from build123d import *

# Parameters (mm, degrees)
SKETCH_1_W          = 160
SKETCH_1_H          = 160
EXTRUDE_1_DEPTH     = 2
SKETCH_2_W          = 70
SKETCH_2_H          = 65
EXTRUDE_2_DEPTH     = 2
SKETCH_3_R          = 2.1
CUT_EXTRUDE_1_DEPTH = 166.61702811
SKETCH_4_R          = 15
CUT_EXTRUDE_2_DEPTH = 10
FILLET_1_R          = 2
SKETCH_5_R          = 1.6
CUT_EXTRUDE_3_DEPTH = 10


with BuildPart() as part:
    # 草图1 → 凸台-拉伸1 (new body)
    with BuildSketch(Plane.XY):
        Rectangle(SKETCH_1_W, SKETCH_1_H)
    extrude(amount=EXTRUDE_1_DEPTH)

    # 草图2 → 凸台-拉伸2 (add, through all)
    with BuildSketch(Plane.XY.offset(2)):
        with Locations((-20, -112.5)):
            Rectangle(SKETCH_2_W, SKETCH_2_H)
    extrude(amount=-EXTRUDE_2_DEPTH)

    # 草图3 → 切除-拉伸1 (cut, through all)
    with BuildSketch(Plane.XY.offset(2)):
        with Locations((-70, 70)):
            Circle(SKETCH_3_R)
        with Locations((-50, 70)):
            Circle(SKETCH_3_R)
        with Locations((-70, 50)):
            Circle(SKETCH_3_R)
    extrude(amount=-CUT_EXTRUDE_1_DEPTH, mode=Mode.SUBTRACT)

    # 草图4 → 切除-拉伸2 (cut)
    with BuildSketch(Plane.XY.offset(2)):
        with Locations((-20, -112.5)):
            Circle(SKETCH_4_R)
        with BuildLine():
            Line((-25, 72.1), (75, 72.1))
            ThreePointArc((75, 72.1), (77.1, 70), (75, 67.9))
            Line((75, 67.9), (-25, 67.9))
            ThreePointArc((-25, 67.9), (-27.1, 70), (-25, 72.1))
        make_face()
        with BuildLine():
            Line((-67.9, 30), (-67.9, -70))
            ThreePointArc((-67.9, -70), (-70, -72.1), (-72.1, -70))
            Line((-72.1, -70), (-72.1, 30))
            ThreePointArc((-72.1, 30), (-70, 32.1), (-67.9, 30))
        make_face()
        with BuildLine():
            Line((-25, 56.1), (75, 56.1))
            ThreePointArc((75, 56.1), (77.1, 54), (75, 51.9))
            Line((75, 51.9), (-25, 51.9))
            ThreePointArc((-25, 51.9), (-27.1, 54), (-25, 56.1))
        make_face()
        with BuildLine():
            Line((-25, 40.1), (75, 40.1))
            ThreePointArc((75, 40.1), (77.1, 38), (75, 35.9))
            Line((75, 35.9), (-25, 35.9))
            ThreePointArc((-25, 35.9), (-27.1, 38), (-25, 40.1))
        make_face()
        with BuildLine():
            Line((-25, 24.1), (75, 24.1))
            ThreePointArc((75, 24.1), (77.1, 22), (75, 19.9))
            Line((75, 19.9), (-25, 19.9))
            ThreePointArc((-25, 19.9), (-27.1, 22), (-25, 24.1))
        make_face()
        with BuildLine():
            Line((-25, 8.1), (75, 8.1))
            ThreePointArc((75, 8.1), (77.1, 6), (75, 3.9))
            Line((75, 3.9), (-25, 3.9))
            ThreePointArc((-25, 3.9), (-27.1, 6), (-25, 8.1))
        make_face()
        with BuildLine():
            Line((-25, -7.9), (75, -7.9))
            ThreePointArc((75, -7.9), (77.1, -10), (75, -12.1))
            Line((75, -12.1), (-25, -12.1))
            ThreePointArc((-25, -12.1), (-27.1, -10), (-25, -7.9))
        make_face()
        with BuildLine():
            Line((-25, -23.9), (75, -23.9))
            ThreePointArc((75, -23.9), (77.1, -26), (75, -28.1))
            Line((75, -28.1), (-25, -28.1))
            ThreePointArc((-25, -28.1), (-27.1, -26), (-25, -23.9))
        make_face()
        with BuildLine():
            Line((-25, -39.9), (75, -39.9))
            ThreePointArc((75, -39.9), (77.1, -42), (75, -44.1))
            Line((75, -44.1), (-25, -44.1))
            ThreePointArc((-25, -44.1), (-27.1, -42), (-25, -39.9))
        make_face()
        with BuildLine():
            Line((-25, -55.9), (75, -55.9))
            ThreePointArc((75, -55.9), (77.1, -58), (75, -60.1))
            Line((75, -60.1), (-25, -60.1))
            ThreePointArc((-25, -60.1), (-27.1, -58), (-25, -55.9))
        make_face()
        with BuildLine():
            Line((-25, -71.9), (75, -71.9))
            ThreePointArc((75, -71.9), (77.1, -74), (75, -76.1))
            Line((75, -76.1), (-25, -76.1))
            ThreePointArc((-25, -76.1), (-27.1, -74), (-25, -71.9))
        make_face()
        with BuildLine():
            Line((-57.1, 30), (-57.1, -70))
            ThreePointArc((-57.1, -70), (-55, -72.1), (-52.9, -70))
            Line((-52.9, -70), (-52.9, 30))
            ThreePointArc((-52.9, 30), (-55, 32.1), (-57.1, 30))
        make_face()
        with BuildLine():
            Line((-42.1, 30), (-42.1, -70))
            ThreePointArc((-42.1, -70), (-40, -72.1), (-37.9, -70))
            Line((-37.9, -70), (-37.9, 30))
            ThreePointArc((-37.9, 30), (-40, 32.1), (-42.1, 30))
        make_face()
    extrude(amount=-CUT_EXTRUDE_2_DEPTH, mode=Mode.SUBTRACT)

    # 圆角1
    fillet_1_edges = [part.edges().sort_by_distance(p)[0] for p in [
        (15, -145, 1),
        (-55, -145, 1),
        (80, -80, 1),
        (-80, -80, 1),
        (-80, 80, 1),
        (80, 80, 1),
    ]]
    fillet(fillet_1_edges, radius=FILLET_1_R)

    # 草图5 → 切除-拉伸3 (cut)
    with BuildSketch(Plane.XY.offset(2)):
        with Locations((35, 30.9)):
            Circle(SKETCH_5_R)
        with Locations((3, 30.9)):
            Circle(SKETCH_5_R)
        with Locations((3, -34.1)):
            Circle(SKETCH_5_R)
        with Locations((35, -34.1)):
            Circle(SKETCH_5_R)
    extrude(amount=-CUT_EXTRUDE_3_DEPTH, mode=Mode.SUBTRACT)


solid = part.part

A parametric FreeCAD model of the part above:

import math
import FreeCAD as App
import Part
import Sketcher
from FreeCAD import Vector


def edges_at(feature, points):
    """Names of the edges that pass closest to the given points."""
    edges = feature.Shape.Edges
    near = lambda p: min(range(len(edges)), key=lambda i: edges[i].distToShape(Part.Vertex(*p))[0])
    return sorted({f"Edge{near(p) + 1}" for p in points})

doc = App.newDocument("Part")
params = doc.addObject("Spreadsheet::Sheet", "Params")
for row, (alias, value) in enumerate([
    ("sketch1_width", "160 mm"),
    ("pad1_length", "2 mm"),
    ("sketch2_width", "70 mm"),
    ("sketch2_height", "65 mm"),
    ("pad2_length", "2 mm"),
    ("sketch3_diameter", "4.2 mm"),
    ("sketch4_diameter", "30 mm"),
    ("sketch4_radius", "2.1 mm"),
    ("sketch4_width", "100 mm"),
    ("pocket2_length", "10 mm"),
    ("fillet_radius", "2 mm"),
    ("sketch5_diameter", "3.2 mm"),
    ("pocket3_length", "10 mm"),
], start=1):
    params.set(f"A{row}", alias)
    params.set(f"B{row}", "=" + value)
    params.setAlias(f"B{row}", alias)

body = doc.addObject("PartDesign::Body", "Body")

# Sketch on XY plane
sketch1 = body.newObject("Sketcher::SketchObject", "Sketch")
sketch1.AttachmentSupport = (doc.getObject("XY_Plane"), [""])
sketch1.MapMode = "FlatFace"
sketch1.addGeometry([
    Part.LineSegment(Vector(-80, 80, 0), Vector(-80, -80, 0)),
    Part.LineSegment(Vector(-80, -80, 0), Vector(80, -80, 0)),
    Part.LineSegment(Vector(80, -80, 0), Vector(80, 80, 0)),
    Part.LineSegment(Vector(80, 80, 0), Vector(-80, 80, 0)),
], False)
sketch1.addConstraint([
    Sketcher.Constraint("Coincident", 0, 2, 1, 1),
    Sketcher.Constraint("Coincident", 1, 2, 2, 1),
    Sketcher.Constraint("Coincident", 2, 2, 3, 1),
    Sketcher.Constraint("Coincident", 3, 2, 0, 1),
    Sketcher.Constraint("Vertical", 0),
    Sketcher.Constraint("Horizontal", 1),
    Sketcher.Constraint("Vertical", 2),
    Sketcher.Constraint("Horizontal", 3),
    Sketcher.Constraint("Symmetric", 0, 2, 2, 2, -1, 1),
    Sketcher.Constraint("Equal", 3, 0),
    Sketcher.Constraint("DistanceX", 1, 1, 1, 2, 160.0),
])
sketch1.setExpression("Constraints[10]", "Params.sketch1_width")
pad1 = body.newObject("PartDesign::Pad", "Pad")
pad1.Profile = sketch1
pad1.setExpression("Length", "Params.pad1_length")

# Sketch on XY plane
sketch2 = body.newObject("Sketcher::SketchObject", "Sketch001")
sketch2.AttachmentSupport = (doc.getObject("XY_Plane"), [""])
sketch2.MapMode = "FlatFace"
sketch2.AttachmentOffset = App.Placement(Vector(0, 0, 2), App.Rotation())
sketch2.addGeometry([
    Part.LineSegment(Vector(-55, -80, 0), Vector(-55, -145, 0)),
    Part.LineSegment(Vector(-55, -145, 0), Vector(15, -145, 0)),
    Part.LineSegment(Vector(15, -145, 0), Vector(15, -80, 0)),
    Part.LineSegment(Vector(15, -80, 0), Vector(-55, -80, 0)),
], False)
sketch2.addConstraint([
    Sketcher.Constraint("Coincident", 0, 2, 1, 1),
    Sketcher.Constraint("Coincident", 1, 2, 2, 1),
    Sketcher.Constraint("Coincident", 2, 2, 3, 1),
    Sketcher.Constraint("Coincident", 3, 2, 0, 1),
    Sketcher.Constraint("Vertical", 0),
    Sketcher.Constraint("Horizontal", 1),
    Sketcher.Constraint("Vertical", 2),
    Sketcher.Constraint("Horizontal", 3),
    Sketcher.Constraint("DistanceX", 1, 1, 1, 2, 70.0),
    Sketcher.Constraint("DistanceY", 0, 2, 0, 1, 65.0),
    Sketcher.Constraint("DistanceX", 0, 2, -1, 1, 55.0),
    Sketcher.Constraint("DistanceY", 0, 2, -1, 1, 145.0),
])
sketch2.setExpression("Constraints[8]", "Params.sketch2_width")
sketch2.setExpression("Constraints[9]", "Params.sketch2_height")
pad2 = body.newObject("PartDesign::Pad", "Pad001")
pad2.Profile = sketch2
pad2.setExpression("Length", "Params.pad2_length")
pad2.Reversed = True

# Sketch on XY plane
sketch3 = body.newObject("Sketcher::SketchObject", "Sketch002")
sketch3.AttachmentSupport = (doc.getObject("XY_Plane"), [""])
sketch3.MapMode = "FlatFace"
sketch3.AttachmentOffset = App.Placement(Vector(0, 0, 2), App.Rotation())
sketch3.addGeometry([
    Part.Circle(Vector(-70, 70, 0), Vector(0, 0, 1), 2.1),
    Part.Circle(Vector(-50, 70, 0), Vector(0, 0, 1), 2.1),
    Part.Circle(Vector(-70, 50, 0), Vector(0, 0, 1), 2.1),
], False)
sketch3.addConstraint([
    Sketcher.Constraint("Equal", 0, 1),
    Sketcher.Constraint("Equal", 1, 2),
    Sketcher.Constraint("Horizontal", 0, 3, 1, 3),
    Sketcher.Constraint("Vertical", 0, 3, 2, 3),
    Sketcher.Constraint("Diameter", 0, 4.2),
    Sketcher.Constraint("DistanceX", 0, 3, -1, 1, 70.0),
    Sketcher.Constraint("DistanceY", -1, 1, 0, 3, 70.0),
    Sketcher.Constraint("DistanceX", 1, 3, -1, 1, 50.0),
    Sketcher.Constraint("DistanceY", -1, 1, 2, 3, 50.0),
])
sketch3.setExpression("Constraints[4]", "Params.sketch3_diameter")
pocket1 = body.newObject("PartDesign::Pocket", "Pocket")
pocket1.Profile = sketch3
pocket1.Type = "ThroughAll"

# Sketch on XY plane
sketch4 = body.newObject("Sketcher::SketchObject", "Sketch003")
sketch4.AttachmentSupport = (doc.getObject("XY_Plane"), [""])
sketch4.MapMode = "FlatFace"
sketch4.AttachmentOffset = App.Placement(Vector(0, 0, 2), App.Rotation())
sketch4.addGeometry([
    Part.Circle(Vector(-20, -112.5, 0), Vector(0, 0, 1), 15),  # 0
    Part.LineSegment(Vector(75, 72.1, 0), Vector(-25, 72.1, 0)),  # 1
    Part.ArcOfCircle(Part.Circle(Vector(-25, 70, 0), Vector(0, 0, 1), 2.1), math.radians(90), math.radians(270)),  # 2
    Part.LineSegment(Vector(-25, 67.9, 0), Vector(75, 67.9, 0)),  # 3
    Part.ArcOfCircle(Part.Circle(Vector(75, 70, 0), Vector(0, 0, 1), 2.1), math.radians(-90), math.radians(90)),  # 4
    Part.LineSegment(Vector(-67.9, -70, 0), Vector(-67.9, 30, 0)),  # 5
    Part.ArcOfCircle(Part.Circle(Vector(-70, 30, 0), Vector(0, 0, 1), 2.1), math.radians(0), math.radians(180)),  # 6
    Part.LineSegment(Vector(-72.1, 30, 0), Vector(-72.1, -70, 0)),  # 7
    Part.ArcOfCircle(Part.Circle(Vector(-70, -70, 0), Vector(0, 0, 1), 2.1), math.radians(180), math.radians(360)),  # 8
    Part.LineSegment(Vector(75, 56.1, 0), Vector(-25, 56.1, 0)),  # 9
    Part.ArcOfCircle(Part.Circle(Vector(-25, 54, 0), Vector(0, 0, 1), 2.1), math.radians(90), math.radians(270)),  # 10
    Part.LineSegment(Vector(-25, 51.9, 0), Vector(75, 51.9, 0)),  # 11
    Part.ArcOfCircle(Part.Circle(Vector(75, 54, 0), Vector(0, 0, 1), 2.1), math.radians(-90), math.radians(90)),  # 12
    Part.LineSegment(Vector(75, 40.1, 0), Vector(-25, 40.1, 0)),  # 13
    Part.ArcOfCircle(Part.Circle(Vector(-25, 38, 0), Vector(0, 0, 1), 2.1), math.radians(90), math.radians(270)),  # 14
    Part.LineSegment(Vector(-25, 35.9, 0), Vector(75, 35.9, 0)),  # 15
    Part.ArcOfCircle(Part.Circle(Vector(75, 38, 0), Vector(0, 0, 1), 2.1), math.radians(-90), math.radians(90)),  # 16
    Part.LineSegment(Vector(75, 24.1, 0), Vector(-25, 24.1, 0)),  # 17
    Part.ArcOfCircle(Part.Circle(Vector(-25, 22, 0), Vector(0, 0, 1), 2.1), math.radians(90), math.radians(270)),  # 18
    Part.LineSegment(Vector(-25, 19.9, 0), Vector(75, 19.9, 0)),  # 19
    Part.ArcOfCircle(Part.Circle(Vector(75, 22, 0), Vector(0, 0, 1), 2.1), math.radians(-90), math.radians(90)),  # 20
    Part.LineSegment(Vector(75, 8.1, 0), Vector(-25, 8.1, 0)),  # 21
    Part.ArcOfCircle(Part.Circle(Vector(-25, 6, 0), Vector(0, 0, 1), 2.1), math.radians(90), math.radians(270)),  # 22
    Part.LineSegment(Vector(-25, 3.9, 0), Vector(75, 3.9, 0)),  # 23
    Part.ArcOfCircle(Part.Circle(Vector(75, 6, 0), Vector(0, 0, 1), 2.1), math.radians(-90), math.radians(90)),  # 24
    Part.LineSegment(Vector(75, -7.9, 0), Vector(-25, -7.9, 0)),  # 25
    Part.ArcOfCircle(Part.Circle(Vector(-25, -10, 0), Vector(0, 0, 1), 2.1), math.radians(90), math.radians(270)),  # 26
    Part.LineSegment(Vector(-25, -12.1, 0), Vector(75, -12.1, 0)),  # 27
    Part.ArcOfCircle(Part.Circle(Vector(75, -10, 0), Vector(0, 0, 1), 2.1), math.radians(-90), math.radians(90)),  # 28
    Part.LineSegment(Vector(75, -23.9, 0), Vector(-25, -23.9, 0)),  # 29
    Part.ArcOfCircle(Part.Circle(Vector(-25, -26, 0), Vector(0, 0, 1), 2.1), math.radians(90), math.radians(270)),  # 30
    Part.LineSegment(Vector(-25, -28.1, 0), Vector(75, -28.1, 0)),  # 31
    Part.ArcOfCircle(Part.Circle(Vector(75, -26, 0), Vector(0, 0, 1), 2.1), math.radians(-90), math.radians(90)),  # 32
    Part.LineSegment(Vector(75, -39.9, 0), Vector(-25, -39.9, 0)),  # 33
    Part.ArcOfCircle(Part.Circle(Vector(-25, -42, 0), Vector(0, 0, 1), 2.1), math.radians(90), math.radians(270)),  # 34
    Part.LineSegment(Vector(-25, -44.1, 0), Vector(75, -44.1, 0)),  # 35
    Part.ArcOfCircle(Part.Circle(Vector(75, -42, 0), Vector(0, 0, 1), 2.1), math.radians(-90), math.radians(90)),  # 36
    Part.LineSegment(Vector(75, -55.9, 0), Vector(-25, -55.9, 0)),  # 37
    Part.ArcOfCircle(Part.Circle(Vector(-25, -58, 0), Vector(0, 0, 1), 2.1), math.radians(90), math.radians(270)),  # 38
    Part.LineSegment(Vector(-25, -60.1, 0), Vector(75, -60.1, 0)),  # 39
    Part.ArcOfCircle(Part.Circle(Vector(75, -58, 0), Vector(0, 0, 1), 2.1), math.radians(-90), math.radians(90)),  # 40
    Part.LineSegment(Vector(75, -71.9, 0), Vector(-25, -71.9, 0)),  # 41
    Part.ArcOfCircle(Part.Circle(Vector(-25, -74, 0), Vector(0, 0, 1), 2.1), math.radians(90), math.radians(270)),  # 42
    Part.LineSegment(Vector(-25, -76.1, 0), Vector(75, -76.1, 0)),  # 43
    Part.ArcOfCircle(Part.Circle(Vector(75, -74, 0), Vector(0, 0, 1), 2.1), math.radians(-90), math.radians(90)),  # 44
    Part.LineSegment(Vector(-57.1, 30, 0), Vector(-57.1, -70, 0)),  # 45
    Part.ArcOfCircle(Part.Circle(Vector(-55, -70, 0), Vector(0, 0, 1), 2.1), math.radians(180), math.radians(360)),  # 46
    Part.LineSegment(Vector(-52.9, -70, 0), Vector(-52.9, 30, 0)),  # 47
    Part.ArcOfCircle(Part.Circle(Vector(-55, 30, 0), Vector(0, 0, 1), 2.1), math.radians(0), math.radians(180)),  # 48
    Part.LineSegment(Vector(-42.1, 30, 0), Vector(-42.1, -70, 0)),  # 49
    Part.ArcOfCircle(Part.Circle(Vector(-40, -70, 0), Vector(0, 0, 1), 2.1), math.radians(180), math.radians(360)),  # 50
    Part.LineSegment(Vector(-37.9, -70, 0), Vector(-37.9, 30, 0)),  # 51
    Part.ArcOfCircle(Part.Circle(Vector(-40, 30, 0), Vector(0, 0, 1), 2.1), math.radians(0), math.radians(180)),  # 52
], False)
sketch4.addConstraint([
    Sketcher.Constraint("Tangent", 1, 2, 2, 1),
    Sketcher.Constraint("Tangent", 2, 2, 3, 1),
    Sketcher.Constraint("Tangent", 3, 2, 4, 1),
    Sketcher.Constraint("Tangent", 4, 2, 1, 1),
    Sketcher.Constraint("Tangent", 5, 2, 6, 1),
    Sketcher.Constraint("Tangent", 6, 2, 7, 1),
    Sketcher.Constraint("Tangent", 7, 2, 8, 1),
    Sketcher.Constraint("Tangent", 8, 2, 5, 1),
    Sketcher.Constraint("Tangent", 9, 2, 10, 1),
    Sketcher.Constraint("Tangent", 10, 2, 11, 1),
    Sketcher.Constraint("Tangent", 11, 2, 12, 1),
    Sketcher.Constraint("Tangent", 12, 2, 9, 1),
    Sketcher.Constraint("Tangent", 13, 2, 14, 1),
    Sketcher.Constraint("Tangent", 14, 2, 15, 1),
    Sketcher.Constraint("Tangent", 15, 2, 16, 1),
    Sketcher.Constraint("Tangent", 16, 2, 13, 1),
    Sketcher.Constraint("Tangent", 17, 2, 18, 1),
    Sketcher.Constraint("Tangent", 18, 2, 19, 1),
    Sketcher.Constraint("Tangent", 19, 2, 20, 1),
    Sketcher.Constraint("Tangent", 20, 2, 17, 1),
    Sketcher.Constraint("Tangent", 21, 2, 22, 1),
    Sketcher.Constraint("Tangent", 22, 2, 23, 1),
    Sketcher.Constraint("Tangent", 23, 2, 24, 1),
    Sketcher.Constraint("Tangent", 24, 2, 21, 1),
    Sketcher.Constraint("Tangent", 25, 2, 26, 1),
    Sketcher.Constraint("Tangent", 26, 2, 27, 1),
    Sketcher.Constraint("Tangent", 27, 2, 28, 1),
    Sketcher.Constraint("Tangent", 28, 2, 25, 1),
    Sketcher.Constraint("Tangent", 29, 2, 30, 1),
    Sketcher.Constraint("Tangent", 30, 2, 31, 1),
    Sketcher.Constraint("Tangent", 31, 2, 32, 1),
    Sketcher.Constraint("Tangent", 32, 2, 29, 1),
    Sketcher.Constraint("Tangent", 33, 2, 34, 1),
    Sketcher.Constraint("Tangent", 34, 2, 35, 1),
    Sketcher.Constraint("Tangent", 35, 2, 36, 1),
    Sketcher.Constraint("Tangent", 36, 2, 33, 1),
    Sketcher.Constraint("Tangent", 37, 2, 38, 1),
    Sketcher.Constraint("Tangent", 38, 2, 39, 1),
    Sketcher.Constraint("Tangent", 39, 2, 40, 1),
    Sketcher.Constraint("Tangent", 40, 2, 37, 1),
    Sketcher.Constraint("Tangent", 41, 2, 42, 1),
    Sketcher.Constraint("Tangent", 42, 2, 43, 1),
    Sketcher.Constraint("Tangent", 43, 2, 44, 1),
    Sketcher.Constraint("Tangent", 44, 2, 41, 1),
    Sketcher.Constraint("Tangent", 45, 2, 46, 1),
    Sketcher.Constraint("Tangent", 46, 2, 47, 1),
    Sketcher.Constraint("Tangent", 47, 2, 48, 1),
    Sketcher.Constraint("Tangent", 48, 2, 45, 1),
    Sketcher.Constraint("Tangent", 49, 2, 50, 1),
    Sketcher.Constraint("Tangent", 50, 2, 51, 1),
    Sketcher.Constraint("Tangent", 51, 2, 52, 1),
    Sketcher.Constraint("Tangent", 52, 2, 49, 1),
    Sketcher.Constraint("Horizontal", 1),
    Sketcher.Constraint("Horizontal", 3),
    Sketcher.Constraint("Vertical", 5),
    Sketcher.Constraint("Vertical", 7),
    Sketcher.Constraint("Horizontal", 9),
    Sketcher.Constraint("Horizontal", 11),
    Sketcher.Constraint("Horizontal", 13),
    Sketcher.Constraint("Horizontal", 15),
    Sketcher.Constraint("Horizontal", 17),
    Sketcher.Constraint("Horizontal", 19),
    Sketcher.Constraint("Horizontal", 21),
    Sketcher.Constraint("Horizontal", 23),
    Sketcher.Constraint("Horizontal", 25),
    Sketcher.Constraint("Horizontal", 27),
    Sketcher.Constraint("Horizontal", 29),
    Sketcher.Constraint("Horizontal", 31),
    Sketcher.Constraint("Horizontal", 33),
    Sketcher.Constraint("Horizontal", 35),
    Sketcher.Constraint("Horizontal", 37),
    Sketcher.Constraint("Horizontal", 39),
    Sketcher.Constraint("Horizontal", 41),
    Sketcher.Constraint("Horizontal", 43),
    Sketcher.Constraint("Vertical", 45),
    Sketcher.Constraint("Vertical", 47),
    Sketcher.Constraint("Vertical", 49),
    Sketcher.Constraint("Vertical", 51),
    Sketcher.Constraint("Equal", 4, 6),
    Sketcher.Constraint("Equal", 8, 10),
    Sketcher.Constraint("Equal", 12, 14),
    Sketcher.Constraint("Equal", 16, 18),
    Sketcher.Constraint("Equal", 20, 22),
    Sketcher.Constraint("Equal", 24, 26),
    Sketcher.Constraint("Equal", 28, 30),
    Sketcher.Constraint("Equal", 32, 34),
    Sketcher.Constraint("Equal", 36, 38),
    Sketcher.Constraint("Equal", 40, 42),
    Sketcher.Constraint("Equal", 44, 46),
    Sketcher.Constraint("Equal", 48, 50),
    Sketcher.Constraint("Horizontal", 8, 3, 46, 3),
    Sketcher.Constraint("Horizontal", 6, 3, 48, 3),
    Sketcher.Constraint("Horizontal", 46, 3, 50, 3),
    Sketcher.Constraint("Horizontal", 48, 3, 52, 3),
    Sketcher.Constraint("Vertical", 2, 3, 10, 3),
    Sketcher.Constraint("Vertical", 4, 3, 12, 3),
    Sketcher.Constraint("Vertical", 10, 3, 14, 3),
    Sketcher.Constraint("Vertical", 12, 3, 16, 3),
    Sketcher.Constraint("Vertical", 14, 3, 18, 3),
    Sketcher.Constraint("Vertical", 16, 3, 20, 3),
    Sketcher.Constraint("Vertical", 18, 3, 22, 3),
    Sketcher.Constraint("Vertical", 20, 3, 24, 3),
    Sketcher.Constraint("Vertical", 22, 3, 26, 3),
    Sketcher.Constraint("Vertical", 24, 3, 28, 3),
    Sketcher.Constraint("Vertical", 26, 3, 30, 3),
    Sketcher.Constraint("Vertical", 28, 3, 32, 3),
    Sketcher.Constraint("Vertical", 30, 3, 34, 3),
    Sketcher.Constraint("Vertical", 32, 3, 36, 3),
    Sketcher.Constraint("Vertical", 34, 3, 38, 3),
    Sketcher.Constraint("Vertical", 36, 3, 40, 3),
    Sketcher.Constraint("Vertical", 38, 3, 42, 3),
    Sketcher.Constraint("Vertical", 40, 3, 44, 3),
    Sketcher.Constraint("Equal", 43, 5),
    Sketcher.Constraint("Diameter", 0, 30.0),
    Sketcher.Constraint("Radius", 2, 2.1),
    Sketcher.Constraint("DistanceX", 1, 2, 1, 1, 100.0),
    Sketcher.Constraint("DistanceX", 0, 3, -1, 1, 20.0),
    Sketcher.Constraint("DistanceX", 2, 3, -1, 1, 25.0),
    Sketcher.Constraint("DistanceY", -1, 1, 2, 3, 70.0),
    Sketcher.Constraint("DistanceX", 6, 3, -1, 1, 70.0),
    Sketcher.Constraint("DistanceY", -1, 1, 6, 3, 30.0),
    Sketcher.Constraint("DistanceY", -1, 1, 10, 3, 54.0),
    Sketcher.Constraint("DistanceY", -1, 1, 14, 3, 38.0),
    Sketcher.Constraint("DistanceY", -1, 1, 18, 3, 22.0),
    Sketcher.Constraint("DistanceY", -1, 1, 22, 3, 6.0),
    Sketcher.Constraint("DistanceY", 26, 3, -1, 1, 10.0),
    Sketcher.Constraint("DistanceY", 30, 3, -1, 1, 26.0),
    Sketcher.Constraint("DistanceY", 34, 3, -1, 1, 42.0),
    Sketcher.Constraint("DistanceY", 38, 3, -1, 1, 58.0),
    Sketcher.Constraint("DistanceY", 42, 3, -1, 1, 74.0),
    Sketcher.Constraint("DistanceX", 46, 3, -1, 1, 55.0),
    Sketcher.Constraint("DistanceX", 50, 3, -1, 1, 40.0),
    Sketcher.Constraint("DistanceY", 0, 3, -1, 1, 112.5),
])
sketch4.setExpression("Constraints[113]", "Params.sketch4_diameter")
sketch4.setExpression("Constraints[114]", "Params.sketch4_radius")
sketch4.setExpression("Constraints[115]", "Params.sketch4_width")
pocket2 = body.newObject("PartDesign::Pocket", "Pocket001")
pocket2.Profile = sketch4
pocket2.setExpression("Length", "Params.pocket2_length")
doc.recompute()

fillet = body.newObject("PartDesign::Fillet", "Fillet")
fillet.Base = (pocket2, edges_at(pocket2, [
    (15, -145, 1),
    (-55, -145, 1),
    (80, -80, 1),
    (-80, -80, 1),
    (-80, 80, 1),
    (80, 80, 1),
]))
fillet.setExpression("Radius", "Params.fillet_radius")

# Sketch on XY plane
sketch5 = body.newObject("Sketcher::SketchObject", "Sketch004")
sketch5.AttachmentSupport = (doc.getObject("XY_Plane"), [""])
sketch5.MapMode = "FlatFace"
sketch5.AttachmentOffset = App.Placement(Vector(0, 0, 2), App.Rotation())
sketch5.addGeometry([
    Part.Circle(Vector(35, 30.9, 0), Vector(0, 0, 1), 1.6),
    Part.Circle(Vector(3, 30.9, 0), Vector(0, 0, 1), 1.6),
    Part.Circle(Vector(3, -34.1, 0), Vector(0, 0, 1), 1.6),
    Part.Circle(Vector(35, -34.1, 0), Vector(0, 0, 1), 1.6),
], False)
sketch5.addConstraint([
    Sketcher.Constraint("Equal", 0, 1),
    Sketcher.Constraint("Equal", 1, 2),
    Sketcher.Constraint("Equal", 2, 3),
    Sketcher.Constraint("Horizontal", 0, 3, 1, 3),
    Sketcher.Constraint("Horizontal", 2, 3, 3, 3),
    Sketcher.Constraint("Vertical", 1, 3, 2, 3),
    Sketcher.Constraint("Vertical", 0, 3, 3, 3),
    Sketcher.Constraint("Diameter", 0, 3.2),
    Sketcher.Constraint("DistanceX", -1, 1, 0, 3, 35.0),
    Sketcher.Constraint("DistanceX", -1, 1, 1, 3, 3.0),
    Sketcher.Constraint("DistanceY", 2, 3, 1, 3, 65.0),
    Sketcher.Constraint("DistanceY", -1, 1, 0, 3, 30.9),
])
sketch5.setExpression("Constraints[7]", "Params.sketch5_diameter")
pocket3 = body.newObject("PartDesign::Pocket", "Pocket002")
pocket3.Profile = sketch5
pocket3.setExpression("Length", "Params.pocket3_length")

doc.recompute()
